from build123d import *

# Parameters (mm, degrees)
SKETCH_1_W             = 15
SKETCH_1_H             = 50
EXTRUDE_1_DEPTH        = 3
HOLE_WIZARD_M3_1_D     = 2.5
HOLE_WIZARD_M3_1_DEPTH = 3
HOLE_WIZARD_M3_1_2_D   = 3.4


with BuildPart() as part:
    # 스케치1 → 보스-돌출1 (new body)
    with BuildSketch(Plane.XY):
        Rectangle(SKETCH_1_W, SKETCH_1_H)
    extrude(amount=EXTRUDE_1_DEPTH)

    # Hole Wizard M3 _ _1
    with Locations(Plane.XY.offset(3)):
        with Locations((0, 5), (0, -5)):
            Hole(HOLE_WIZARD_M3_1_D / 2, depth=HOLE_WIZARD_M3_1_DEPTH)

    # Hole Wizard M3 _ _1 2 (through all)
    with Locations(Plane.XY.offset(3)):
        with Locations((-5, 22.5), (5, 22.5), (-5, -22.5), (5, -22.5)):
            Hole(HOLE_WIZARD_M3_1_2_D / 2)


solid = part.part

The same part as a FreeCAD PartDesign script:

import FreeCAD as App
import Part
import Sketcher

V = App.Vector
Q = App.Units.Quantity


def add_polygon(sketch, points):
    """Adds a closed chain of lines whose ends are joined by coincident constraints."""
    first, n = sketch.GeometryCount, len(points)
    for a, b in zip(points, points[1:] + points[:1]):
        sketch.addGeometry(Part.LineSegment(App.Vector(*a, 0), App.Vector(*b, 0)), False)
    for i in range(n):
        sketch.addConstraint(Sketcher.Constraint("Coincident", first + i, 2, first + (i + 1) % n, 1))

doc = App.newDocument("Part")
params = doc.addObject("Spreadsheet::Sheet", "Params")
for row, (alias, value) in enumerate([
    ("sketch1_width", "15 mm"),
    ("sketch1_height", "50 mm"),
    ("pad1_length", "3 mm"),
    ("sketch2_diameter", "2.5 mm"),
    ("hole_diameter", "2.5 mm"),
    ("hole_depth", "3 mm"),
    ("sketch3_diameter", "3.4 mm"),
    ("hole2_diameter", "3.4 mm"),
], start=1):
    params.set(f"A{row}", alias)
    params.set(f"B{row}", "=" + value)
    params.setAlias(f"B{row}", alias)

body = doc.addObject("PartDesign::Body", "Body")

sketch1 = body.newObject("Sketcher::SketchObject", "Sketch")
sketch1.AttachmentSupport = (doc.getObject("XY_Plane"), [""])
sketch1.MapMode = "FlatFace"
add_polygon(sketch1, [(-8, 25), (-8, -25), (8, -25), (8, 25)])
sketch1.addConstraint(Sketcher.Constraint("Vertical", 0))
sketch1.addConstraint(Sketcher.Constraint("Horizontal", 1))
sketch1.addConstraint(Sketcher.Constraint("Vertical", 2))
sketch1.addConstraint(Sketcher.Constraint("Horizontal", 3))
sketch1.addConstraint(Sketcher.Constraint("Symmetric", 0, 2, 2, 2, -1, 1))
sketch1.addConstraint(Sketcher.Constraint("DistanceX", 1, 1, 1, 2, Q("15 mm")))
sketch1.addConstraint(Sketcher.Constraint("DistanceY", 0, 2, 0, 1, Q("50 mm")))
sketch1.setExpression("Constraints[9]", "Params.sketch1_width")
sketch1.setExpression("Constraints[10]", "Params.sketch1_height")
pad1 = body.newObject("PartDesign::Pad", "Pad")
pad1.Profile = sketch1
pad1.setExpression("Length", "Params.pad1_length")

sketch2 = body.newObject("Sketcher::SketchObject", "Sketch001")
sketch2.AttachmentSupport = (doc.getObject("XY_Plane"), [""])
sketch2.MapMode = "FlatFace"
sketch2.AttachmentOffset = App.Placement(V(0, 0, 3), App.Rotation())
sketch2.addGeometry(Part.Circle(V(0, 5, 0), V(0, 0, 1), 1.2), False)
sketch2.addGeometry(Part.Circle(V(0, -5, 0), V(0, 0, 1), 1.2), False)
sketch2.addConstraint(Sketcher.Constraint("Equal", 0, 1))
sketch2.addConstraint(Sketcher.Constraint("Symmetric", 0, 3, 1, 3, -1, 1))
sketch2.addConstraint(Sketcher.Constraint("PointOnObject", 0, 3, -2))
sketch2.addConstraint(Sketcher.Constraint("Diameter", 0, Q("2.5 mm")))
sketch2.addConstraint(Sketcher.Constraint("DistanceY", -1, 1, 0, 3, Q("5 mm")))
sketch2.setExpression("Constraints[3]", "Params.sketch2_diameter")
doc.recompute()
hole = body.newObject("PartDesign::Hole", "Hole")
hole.Profile = sketch2
hole.ThreadType = "None"
hole.setExpression("Diameter", "Params.hole_diameter")
hole.DepthType = "Dimension"
hole.setExpression("Depth", "Params.hole_depth")
hole.DrillPoint = "Flat"

sketch3 = body.newObject("Sketcher::SketchObject", "Sketch002")
sketch3.AttachmentSupport = (doc.getObject("XY_Plane"), [""])
sketch3.MapMode = "FlatFace"
sketch3.AttachmentOffset = App.Placement(V(0, 0, 3), App.Rotation())
sketch3.addGeometry(Part.Circle(V(-5, 22.5, 0), V(0, 0, 1), 1.7), False)
sketch3.addGeometry(Part.Circle(V(5, 22.5, 0), V(0, 0, 1), 1.7), False)
sketch3.addGeometry(Part.Circle(V(-5, -22.5, 0), V(0, 0, 1), 1.7), False)
sketch3.addGeometry(Part.Circle(V(5, -22.5, 0), V(0, 0, 1), 1.7), False)
sketch3.addConstraint(Sketcher.Constraint("Equal", 0, 1))
sketch3.addConstraint(Sketcher.Constraint("Equal", 1, 2))
sketch3.addConstraint(Sketcher.Constraint("Equal", 2, 3))
sketch3.addConstraint(Sketcher.Constraint("Symmetric", 1, 3, 2, 3, -1, 1))
sketch3.addConstraint(Sketcher.Constraint("Symmetric", 0, 3, 3, 3, -1, 1))
sketch3.addConstraint(Sketcher.Constraint("Symmetric", 0, 3, 1, 3, -2))
sketch3.addConstraint(Sketcher.Constraint("Diameter", 0, Q("3.4 mm")))
sketch3.addConstraint(Sketcher.Constraint("DistanceX", 0, 3, -1, 1, Q("5 mm")))
sketch3.addConstraint(Sketcher.Constraint("DistanceY", 2, 3, 0, 3, Q("45 mm")))
sketch3.setExpression("Constraints[6]", "Params.sketch3_diameter")
doc.recompute()
hole2 = body.newObject("PartDesign::Hole", "Hole001")
hole2.Profile = sketch3
hole2.ThreadType = "None"
hole2.setExpression("Diameter", "Params.hole2_diameter")
hole2.DepthType = "ThroughAll"

doc.recompute()
